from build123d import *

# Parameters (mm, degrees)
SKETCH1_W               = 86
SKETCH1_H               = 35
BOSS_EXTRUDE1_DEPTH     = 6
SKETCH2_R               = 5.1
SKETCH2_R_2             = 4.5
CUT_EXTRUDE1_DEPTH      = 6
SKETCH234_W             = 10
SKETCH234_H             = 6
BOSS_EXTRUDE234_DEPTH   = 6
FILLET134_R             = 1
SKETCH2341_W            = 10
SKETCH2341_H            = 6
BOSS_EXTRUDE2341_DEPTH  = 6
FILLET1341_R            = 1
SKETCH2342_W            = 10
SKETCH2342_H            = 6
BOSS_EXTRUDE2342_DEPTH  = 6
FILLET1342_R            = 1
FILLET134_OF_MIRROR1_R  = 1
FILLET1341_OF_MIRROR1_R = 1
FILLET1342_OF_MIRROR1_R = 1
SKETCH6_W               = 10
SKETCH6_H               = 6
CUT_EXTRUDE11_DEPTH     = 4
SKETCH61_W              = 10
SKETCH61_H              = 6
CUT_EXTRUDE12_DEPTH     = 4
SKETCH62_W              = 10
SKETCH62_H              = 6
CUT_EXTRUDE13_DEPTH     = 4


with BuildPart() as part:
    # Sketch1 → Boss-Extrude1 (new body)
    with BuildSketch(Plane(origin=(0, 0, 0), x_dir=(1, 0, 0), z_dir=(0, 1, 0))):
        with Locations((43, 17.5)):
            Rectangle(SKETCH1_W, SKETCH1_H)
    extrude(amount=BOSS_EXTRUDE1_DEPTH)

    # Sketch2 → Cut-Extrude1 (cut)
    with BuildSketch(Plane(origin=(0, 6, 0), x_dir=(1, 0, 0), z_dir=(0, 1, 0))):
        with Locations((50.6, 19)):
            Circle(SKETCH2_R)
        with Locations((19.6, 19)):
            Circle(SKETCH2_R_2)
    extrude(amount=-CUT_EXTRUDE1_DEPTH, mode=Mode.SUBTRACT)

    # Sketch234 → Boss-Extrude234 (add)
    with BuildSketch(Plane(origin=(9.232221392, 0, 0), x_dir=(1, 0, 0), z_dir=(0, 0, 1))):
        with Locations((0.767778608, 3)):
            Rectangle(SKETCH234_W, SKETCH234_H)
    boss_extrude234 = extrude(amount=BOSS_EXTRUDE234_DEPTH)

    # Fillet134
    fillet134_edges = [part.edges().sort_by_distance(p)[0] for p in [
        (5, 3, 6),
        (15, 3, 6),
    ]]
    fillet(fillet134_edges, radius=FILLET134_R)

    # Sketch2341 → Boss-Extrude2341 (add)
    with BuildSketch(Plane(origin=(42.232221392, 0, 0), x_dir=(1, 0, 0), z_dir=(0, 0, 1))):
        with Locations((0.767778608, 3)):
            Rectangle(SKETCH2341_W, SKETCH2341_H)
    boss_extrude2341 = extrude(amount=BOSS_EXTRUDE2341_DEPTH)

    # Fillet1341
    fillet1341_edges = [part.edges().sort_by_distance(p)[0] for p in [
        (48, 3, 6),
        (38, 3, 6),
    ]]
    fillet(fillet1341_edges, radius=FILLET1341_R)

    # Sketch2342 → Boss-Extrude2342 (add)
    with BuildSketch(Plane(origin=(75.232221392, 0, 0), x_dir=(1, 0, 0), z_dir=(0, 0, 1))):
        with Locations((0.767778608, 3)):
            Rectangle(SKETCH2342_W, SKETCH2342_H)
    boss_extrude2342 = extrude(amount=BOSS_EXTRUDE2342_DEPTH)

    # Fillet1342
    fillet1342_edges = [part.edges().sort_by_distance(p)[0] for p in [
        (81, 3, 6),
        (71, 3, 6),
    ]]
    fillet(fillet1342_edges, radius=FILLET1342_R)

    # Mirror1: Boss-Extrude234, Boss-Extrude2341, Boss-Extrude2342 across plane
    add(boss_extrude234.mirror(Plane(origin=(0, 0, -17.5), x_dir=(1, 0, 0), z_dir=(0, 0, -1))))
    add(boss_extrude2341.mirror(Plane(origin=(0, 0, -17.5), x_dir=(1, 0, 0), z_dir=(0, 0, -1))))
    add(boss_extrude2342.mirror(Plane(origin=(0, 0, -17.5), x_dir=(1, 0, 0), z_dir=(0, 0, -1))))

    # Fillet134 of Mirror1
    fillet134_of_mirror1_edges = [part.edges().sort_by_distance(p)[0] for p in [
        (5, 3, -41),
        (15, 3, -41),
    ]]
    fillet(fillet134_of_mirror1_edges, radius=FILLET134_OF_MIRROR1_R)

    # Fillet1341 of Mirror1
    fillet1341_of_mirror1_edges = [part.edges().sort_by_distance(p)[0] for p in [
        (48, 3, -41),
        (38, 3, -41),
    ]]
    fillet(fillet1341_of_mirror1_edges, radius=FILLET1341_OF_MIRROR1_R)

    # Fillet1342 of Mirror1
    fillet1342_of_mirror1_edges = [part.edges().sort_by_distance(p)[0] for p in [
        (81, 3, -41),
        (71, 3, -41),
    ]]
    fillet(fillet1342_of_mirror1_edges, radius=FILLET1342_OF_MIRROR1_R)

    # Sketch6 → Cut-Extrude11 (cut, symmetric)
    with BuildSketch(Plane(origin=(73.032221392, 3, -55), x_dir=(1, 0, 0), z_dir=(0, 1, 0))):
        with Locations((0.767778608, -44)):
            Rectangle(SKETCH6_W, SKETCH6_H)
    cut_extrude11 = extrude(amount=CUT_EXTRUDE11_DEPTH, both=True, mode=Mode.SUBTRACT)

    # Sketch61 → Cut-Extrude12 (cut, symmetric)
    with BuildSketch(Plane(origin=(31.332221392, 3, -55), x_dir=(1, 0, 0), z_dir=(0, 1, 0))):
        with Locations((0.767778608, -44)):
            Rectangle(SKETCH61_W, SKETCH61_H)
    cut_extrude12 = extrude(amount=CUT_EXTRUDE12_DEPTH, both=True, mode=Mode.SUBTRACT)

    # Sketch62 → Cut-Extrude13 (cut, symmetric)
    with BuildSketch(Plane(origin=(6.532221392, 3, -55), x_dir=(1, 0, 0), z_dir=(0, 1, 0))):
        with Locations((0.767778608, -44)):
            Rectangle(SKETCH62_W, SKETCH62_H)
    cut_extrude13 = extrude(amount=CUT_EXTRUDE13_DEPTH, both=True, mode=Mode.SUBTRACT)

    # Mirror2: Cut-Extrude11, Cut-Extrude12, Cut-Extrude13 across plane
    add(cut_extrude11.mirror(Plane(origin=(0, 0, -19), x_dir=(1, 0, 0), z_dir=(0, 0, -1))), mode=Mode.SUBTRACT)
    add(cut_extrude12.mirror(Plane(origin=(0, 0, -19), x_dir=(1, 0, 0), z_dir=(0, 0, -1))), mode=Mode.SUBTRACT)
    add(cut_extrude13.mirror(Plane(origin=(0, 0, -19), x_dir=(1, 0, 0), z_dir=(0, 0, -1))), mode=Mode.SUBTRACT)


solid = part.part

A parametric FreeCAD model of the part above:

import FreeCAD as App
import Part
import Sketcher


def edges_at(feature, points):
    """Names of the edges that pass closest to the given points."""
    edges = feature.Shape.Edges
    near = lambda p: min(range(len(edges)), key=lambda i: edges[i].distToShape(Part.Vertex(*p))[0])
    return sorted({f"Edge{near(p) + 1}" for p in points})


def add_polygon(sketch, points):
    """Adds a closed chain of lines whose ends are joined by coincident constraints."""
    first, n = sketch.GeometryCount, len(points)
    for a, b in zip(points, points[1:] + points[:1]):
        sketch.addGeometry(Part.LineSegment(App.Vector(*a, 0), App.Vector(*b, 0)), False)
    for i in range(n):
        sketch.addConstraint(Sketcher.Constraint("Coincident", first + i, 2, first + (i + 1) % n, 1))

doc = App.newDocument("Part")
params = doc.addObject("Spreadsheet::Sheet", "Params")
for row, (alias, value) in enumerate([
    ("sketch1_width", "86 mm"),
    ("sketch1_height", "35 mm"),
    ("pad1_length", "6 mm"),
    ("sketch2_diameter", "9 mm"),
    ("sketch2_diameter2", "10.2 mm"),
    ("pocket1_length", "6 mm"),
    ("sketch3_width", "10 mm"),
    ("sketch3_height", "6 mm"),
    ("pad2_length", "6 mm"),
    ("fillet_radius", "1 mm"),
    ("sketch4_width", "10 mm"),
    ("sketch4_height", "6 mm"),
    ("pad3_length", "6 mm"),
    ("fillet2_radius", "1 mm"),
    ("sketch5_width", "10 mm"),
    ("sketch5_height", "6 mm"),
    ("pad4_length", "6 mm"),
    ("fillet3_radius", "1 mm"),
    ("fillet4_radius", "1 mm"),
    ("fillet5_radius", "1 mm"),
    ("fillet6_radius", "1 mm"),
    ("sketch6_width", "10 mm"),
    ("sketch6_height", "6 mm"),
    ("pocket2_length", "8 mm"),
    ("sketch7_width", "10 mm"),
    ("sketch7_height", "6 mm"),
    ("pocket3_length", "8 mm"),
    ("sketch8_width", "10 mm"),
    ("sketch8_height", "6 mm"),
    ("pocket4_length", "8 mm"),
], start=1):
    params.set(f"A{row}", alias)
    params.set(f"B{row}", "=" + value)
    params.setAlias(f"B{row}", alias)

body = doc.addObject("PartDesign::Body", "Body")

# Sketch on XZ plane
sketch1 = body.newObject("Sketcher::SketchObject", "Sketch")
sketch1.AttachmentSupport = (doc.getObject("XZ_Plane"), [""])
sketch1.MapMode = "FlatFace"
add_polygon(sketch1, [(0, -35), (0, 0), (86, 0), (86, -35)])  # lines 0-3
sketch1.addConstraint([
    Sketcher.Constraint("Vertical", 0),
    Sketcher.Constraint("Horizontal", 1),
    Sketcher.Constraint("Vertical", 2),
    Sketcher.Constraint("Horizontal", 3),
    Sketcher.Constraint("Coincident", 0, 2, -1, 1),
    Sketcher.Constraint("DistanceX", 1, 1, 1, 2, 86.0),
    Sketcher.Constraint("DistanceY", 0, 1, 0, 2, 35.0),
])
sketch1.setExpression("Constraints[9]", "Params.sketch1_width")
sketch1.setExpression("Constraints[10]", "Params.sketch1_height")
pad1 = body.newObject("PartDesign::Pad", "Pad")
pad1.Profile = sketch1
pad1.setExpression("Length", "Params.pad1_length")
pad1.Reversed = True

# Sketch on XZ plane
sketch2 = body.newObject("Sketcher::SketchObject", "Sketch001")
sketch2.AttachmentSupport = (doc.getObject("XZ_Plane"), [""])
sketch2.MapMode = "FlatFace"
sketch2.AttachmentOffset = App.Placement(App.Vector(0, 0, -6), App.Rotation())
sketch2.addGeometry([
    Part.Circle(App.Vector(50.6, -19, 0), App.Vector(0, 0, 1), 5.1),
    Part.Circle(App.Vector(19.6, -19, 0), App.Vector(0, 0, 1), 4.5),
], False)
sketch2.addConstraint([
    Sketcher.Constraint("Horizontal", 0, 3, 1, 3),
    Sketcher.Constraint("Diameter", 1, 9.0),
    Sketcher.Constraint("Diameter", 0, 10.2),
    Sketcher.Constraint("DistanceY", 0, 3, -1, 1, 19.0),
    Sketcher.Constraint("DistanceX", 1, 3, 0, 3, 31.0),
    Sketcher.Constraint("DistanceX", -1, 1, 0, 3, 50.6),
])
sketch2.setExpression("Constraints[1]", "Params.sketch2_diameter")
sketch2.setExpression("Constraints[2]", "Params.sketch2_diameter2")
pocket1 = body.newObject("PartDesign::Pocket", "Pocket")
pocket1.Profile = sketch2
pocket1.setExpression("Length", "Params.pocket1_length")
pocket1.Reversed = True

# Sketch on XY plane
sketch3 = body.newObject("Sketcher::SketchObject", "Sketch002")
sketch3.AttachmentSupport = (doc.getObject("XY_Plane"), [""])
sketch3.MapMode = "FlatFace"
add_polygon(sketch3, [(5, 6), (5, 0), (15, 0), (15, 6)])  # lines 0-3
sketch3.addConstraint([
    Sketcher.Constraint("Vertical", 0),
    Sketcher.Constraint("Horizontal", 1),
    Sketcher.Constraint("Vertical", 2),
    Sketcher.Constraint("Horizontal", 3),
    Sketcher.Constraint("PointOnObject", 0, 2, -1),
    Sketcher.Constraint("DistanceX", 1, 1, 1, 2, 10.0),
    Sketcher.Constraint("DistanceY", 0, 2, 0, 1, 6.0),
    Sketcher.Constraint("DistanceX", -1, 1, 0, 2, 5.0),
])
sketch3.setExpression("Constraints[9]", "Params.sketch3_width")
sketch3.setExpression("Constraints[10]", "Params.sketch3_height")
pad2 = body.newObject("PartDesign::Pad", "Pad001")
pad2.Profile = sketch3
pad2.setExpression("Length", "Params.pad2_length")
doc.recompute()

fillet = body.newObject("PartDesign::Fillet", "Fillet")
fillet.Base = (pad2, edges_at(pad2, [(5, 3, 6), (15, 3, 6)]))
fillet.setExpression("Radius", "Params.fillet_radius")

# Sketch on XY plane
sketch4 = body.newObject("Sketcher::SketchObject", "Sketch003")
sketch4.AttachmentSupport = (doc.getObject("XY_Plane"), [""])
sketch4.MapMode = "FlatFace"
add_polygon(sketch4, [(38, 6), (38, 0), (48, 0), (48, 6)])  # lines 0-3
sketch4.addConstraint([
    Sketcher.Constraint("Vertical", 0),
    Sketcher.Constraint("Horizontal", 1),
    Sketcher.Constraint("Vertical", 2),
    Sketcher.Constraint("Horizontal", 3),
    Sketcher.Constraint("PointOnObject", 0, 2, -1),
    Sketcher.Constraint("DistanceX", 1, 1, 1, 2, 10.0),
    Sketcher.Constraint("DistanceY", 0, 2, 0, 1, 6.0),
    Sketcher.Constraint("DistanceX", -1, 1, 0, 2, 38.0),
])
sketch4.setExpression("Constraints[9]", "Params.sketch4_width")
sketch4.setExpression("Constraints[10]", "Params.sketch4_height")
pad3 = body.newObject("PartDesign::Pad", "Pad002")
pad3.Profile = sketch4
pad3.setExpression("Length", "Params.pad3_length")
doc.recompute()

fillet2 = body.newObject("PartDesign::Fillet", "Fillet001")
fillet2.Base = (pad3, edges_at(pad3, [(48, 3, 6), (38, 3, 6)]))
fillet2.setExpression("Radius", "Params.fillet2_radius")

# Sketch on XY plane
sketch5 = body.newObject("Sketcher::SketchObject", "Sketch004")
sketch5.AttachmentSupport = (doc.getObject("XY_Plane"), [""])
sketch5.MapMode = "FlatFace"
add_polygon(sketch5, [(71, 6), (71, 0), (81, 0), (81, 6)])  # lines 0-3
sketch5.addConstraint([
    Sketcher.Constraint("Vertical", 0),
    Sketcher.Constraint("Horizontal", 1),
    Sketcher.Constraint("Vertical", 2),
    Sketcher.Constraint("Horizontal", 3),
    Sketcher.Constraint("PointOnObject", 0, 2, -1),
    Sketcher.Constraint("DistanceX", 1, 1, 1, 2, 10.0),
    Sketcher.Constraint("DistanceY", 0, 2, 0, 1, 6.0),
    Sketcher.Constraint("DistanceX", -1, 1, 0, 2, 71.0),
])
sketch5.setExpression("Constraints[9]", "Params.sketch5_width")
sketch5.setExpression("Constraints[10]", "Params.sketch5_height")
pad4 = body.newObject("PartDesign::Pad", "Pad003")
pad4.Profile = sketch5
pad4.setExpression("Length", "Params.pad4_length")
doc.recompute()

fillet3 = body.newObject("PartDesign::Fillet", "Fillet002")
fillet3.Base = (pad4, edges_at(pad4, [(81, 3, 6), (71, 3, 6)]))
fillet3.setExpression("Radius", "Params.fillet3_radius")
doc.recompute()

datumplane = body.newObject("PartDesign::Plane", "DatumPlane")
datumplane.AttachmentSupport = (doc.getObject("XY_Plane"), [""])
datumplane.MapMode = "FlatFace"
datumplane.AttachmentOffset = App.Placement(App.Vector(0, 0, -17.5), App.Rotation())
mirrored = body.newObject("PartDesign::Mirrored", "Mirrored")
mirrored.Originals = [pad2, pad3, pad4]
mirrored.MirrorPlane = (datumplane, [""])
body.Tip = mirrored
doc.recompute()

fillet4 = body.newObject("PartDesign::Fillet", "Fillet003")
fillet4.Base = (mirrored, edges_at(mirrored, [(5, 3, -41), (15, 3, -41)]))
fillet4.setExpression("Radius", "Params.fillet4_radius")
doc.recompute()

fillet5 = body.newObject("PartDesign::Fillet", "Fillet004")
fillet5.Base = (fillet4, edges_at(fillet4, [(48, 3, -41), (38, 3, -41)]))
fillet5.setExpression("Radius", "Params.fillet5_radius")
doc.recompute()

fillet6 = body.newObject("PartDesign::Fillet", "Fillet005")
fillet6.Base = (fillet5, edges_at(fillet5, [(81, 3, -41), (71, 3, -41)]))
fillet6.setExpression("Radius", "Params.fillet6_radius")

# Sketch on XZ plane
sketch6 = body.newObject("Sketcher::SketchObject", "Sketch005")
sketch6.AttachmentSupport = (doc.getObject("XZ_Plane"), [""])
sketch6.MapMode = "FlatFace"
sketch6.AttachmentOffset = App.Placement(App.Vector(0, 0, -3), App.Rotation())
add_polygon(sketch6, [(69, -14), (69, -8), (79, -8), (79, -14)])  # lines 0-3
sketch6.addConstraint([
    Sketcher.Constraint("Vertical", 0),
    Sketcher.Constraint("Horizontal", 1),
    Sketcher.Constraint("Vertical", 2),
    Sketcher.Constraint("Horizontal", 3),
    Sketcher.Constraint("DistanceX", 1, 1, 1, 2, 10.0),
    Sketcher.Constraint("DistanceY", 0, 1, 0, 2, 6.0),
    Sketcher.Constraint("DistanceY", 0, 2, -1, 1, 8.0),
    Sketcher.Constraint("DistanceX", -1, 1, 0, 2, 68.8),
])
sketch6.setExpression("Constraints[8]", "Params.sketch6_width")
sketch6.setExpression("Constraints[9]", "Params.sketch6_height")
pocket2 = body.newObject("PartDesign::Pocket", "Pocket001")
pocket2.Profile = sketch6
pocket2.setExpression("Length", "Params.pocket2_length")
pocket2.Midplane = True

# Sketch on XZ plane
sketch7 = body.newObject("Sketcher::SketchObject", "Sketch006")
sketch7.AttachmentSupport = (doc.getObject("XZ_Plane"), [""])
sketch7.MapMode = "FlatFace"
sketch7.AttachmentOffset = App.Placement(App.Vector(0, 0, -3), App.Rotation())
add_polygon(sketch7, [(27, -14), (27, -8), (37, -8), (37, -14)])  # lines 0-3
sketch7.addConstraint([
    Sketcher.Constraint("Vertical", 0),
    Sketcher.Constraint("Horizontal", 1),
    Sketcher.Constraint("Vertical", 2),
    Sketcher.Constraint("Horizontal", 3),
    Sketcher.Constraint("DistanceX", 1, 1, 1, 2, 10.0),
    Sketcher.Constraint("DistanceY", 0, 1, 0, 2, 6.0),
    Sketcher.Constraint("DistanceY", 0, 2, -1, 1, 8.0),
    Sketcher.Constraint("DistanceX", -1, 1, 0, 2, 27.1),
])
sketch7.setExpression("Constraints[8]", "Params.sketch7_width")
sketch7.setExpression("Constraints[9]", "Params.sketch7_height")
pocket3 = body.newObject("PartDesign::Pocket", "Pocket002")
pocket3.Profile = sketch7
pocket3.setExpression("Length", "Params.pocket3_length")
pocket3.Midplane = True

# Sketch on XZ plane
sketch8 = body.newObject("Sketcher::SketchObject", "Sketch007")
sketch8.AttachmentSupport = (doc.getObject("XZ_Plane"), [""])
sketch8.MapMode = "FlatFace"
sketch8.AttachmentOffset = App.Placement(App.Vector(0, 0, -3), App.Rotation())
add_polygon(sketch8, [(2, -14), (2, -8), (12, -8), (12, -14)])  # lines 0-3
sketch8.addConstraint([
    Sketcher.Constraint("Vertical", 0),
    Sketcher.Constraint("Horizontal", 1),
    Sketcher.Constraint("Vertical", 2),
    Sketcher.Constraint("Horizontal", 3),
    Sketcher.Constraint("DistanceX", 1, 1, 1, 2, 10.0),
    Sketcher.Constraint("DistanceY", 0, 1, 0, 2, 6.0),
    Sketcher.Constraint("DistanceY", 0, 2, -1, 1, 8.0),
    Sketcher.Constraint("DistanceX", -1, 1, 0, 2, 2.3),
])
sketch8.setExpression("Constraints[8]", "Params.sketch8_width")
sketch8.setExpression("Constraints[9]", "Params.sketch8_height")
pocket4 = body.newObject("PartDesign::Pocket", "Pocket003")
pocket4.Profile = sketch8
pocket4.setExpression("Length", "Params.pocket4_length")
pocket4.Midplane = True
doc.recompute()

datumplane2 = body.newObject("PartDesign::Plane", "DatumPlane001")
datumplane2.AttachmentSupport = (doc.getObject("XY_Plane"), [""])
datumplane2.MapMode = "FlatFace"
datumplane2.AttachmentOffset = App.Placement(App.Vector(0, 0, -19), App.Rotation())
mirrored2 = body.newObject("PartDesign::Mirrored", "Mirrored001")
mirrored2.Originals = [pocket2, pocket3, pocket4]
mirrored2.MirrorPlane = (datumplane2, [""])
body.Tip = mirrored2

doc.recompute()
